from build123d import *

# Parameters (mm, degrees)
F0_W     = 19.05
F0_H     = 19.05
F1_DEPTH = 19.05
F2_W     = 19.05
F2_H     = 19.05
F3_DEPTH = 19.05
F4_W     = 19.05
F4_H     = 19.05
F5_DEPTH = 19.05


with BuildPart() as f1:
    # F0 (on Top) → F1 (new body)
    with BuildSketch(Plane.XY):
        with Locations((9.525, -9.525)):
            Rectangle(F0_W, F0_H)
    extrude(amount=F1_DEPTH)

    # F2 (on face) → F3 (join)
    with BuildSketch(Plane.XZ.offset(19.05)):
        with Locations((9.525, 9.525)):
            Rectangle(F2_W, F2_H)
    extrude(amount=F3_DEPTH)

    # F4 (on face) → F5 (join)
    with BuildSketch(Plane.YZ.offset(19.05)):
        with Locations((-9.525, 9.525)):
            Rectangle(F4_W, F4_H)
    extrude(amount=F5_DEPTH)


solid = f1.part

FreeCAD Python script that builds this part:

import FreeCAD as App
import Part
import Sketcher
from FreeCAD import Vector
Q = App.Units.Quantity


def add_polygon(sketch, points):
    """Adds a closed chain of lines whose ends are joined by coincident constraints."""
    first, n = sketch.GeometryCount, len(points)
    for a, b in zip(points, points[1:] + points[:1]):
        sketch.addGeometry(Part.LineSegment(App.Vector(*a, 0), App.Vector(*b, 0)), False)
    for i in range(n):
        sketch.addConstraint(Sketcher.Constraint("Coincident", first + i, 2, first + (i + 1) % n, 1))

doc = App.newDocument("Part")
params = doc.addObject("Spreadsheet::Sheet", "Params")
for row, (alias, value) in enumerate([
    ("sketch1_width", "0.75 in"),
    ("pad1_length", "0.75 in"),
    ("sketch2_width", "0.75 in"),
    ("pad2_length", "0.75 in"),
    ("sketch3_width", "0.75 in"),
    ("pad3_length", "0.75 in"),
], start=1):
    params.set(f"A{row}", alias)
    params.set(f"B{row}", "=" + value)
    params.setAlias(f"B{row}", alias)

body = doc.addObject("PartDesign::Body", "Body")

# Sketch on XY plane
sketch1 = body.newObject("Sketcher::SketchObject", "Sketch")
sketch1.AttachmentSupport = (doc.getObject("XY_Plane"), [""])
sketch1.MapMode = "FlatFace"
add_polygon(sketch1, [(0, 0), (0, -19.05), (19.05, -19.05), (19.05, 0)])  # lines 0-3
sketch1.addConstraint([
    Sketcher.Constraint("Vertical", 0),
    Sketcher.Constraint("Horizontal", 1),
    Sketcher.Constraint("Vertical", 2),
    Sketcher.Constraint("Horizontal", 3),
    Sketcher.Constraint("Coincident", 3, 2, -1, 1),
    Sketcher.Constraint("Equal", 3, 0),
    Sketcher.Constraint("DistanceX", 1, 1, 1, 2, Q("0.75 in")),
])
sketch1.setExpression("Constraints[10]", "Params.sketch1_width")
pad1 = body.newObject("PartDesign::Pad", "Pad")
pad1.Profile = sketch1
pad1.setExpression("Length", "Params.pad1_length")

# Sketch on XZ plane
sketch2 = body.newObject("Sketcher::SketchObject", "Sketch001")
sketch2.AttachmentSupport = (doc.getObject("XZ_Plane"), [""])
sketch2.MapMode = "FlatFace"
sketch2.AttachmentOffset = App.Placement(Vector(0, 0, 0.75 * 25.4), App.Rotation())
add_polygon(sketch2, [(0, 19.05), (0, 0), (19.05, 0), (19.05, 19.05)])  # lines 0-3
sketch2.addConstraint([
    Sketcher.Constraint("Vertical", 0),
    Sketcher.Constraint("Horizontal", 1),
    Sketcher.Constraint("Vertical", 2),
    Sketcher.Constraint("Horizontal", 3),
    Sketcher.Constraint("Coincident", 0, 2, -1, 1),
    Sketcher.Constraint("Equal", 3, 0),
    Sketcher.Constraint("DistanceX", 1, 1, 1, 2, Q("0.75 in")),
])
sketch2.setExpression("Constraints[10]", "Params.sketch2_width")
pad2 = body.newObject("PartDesign::Pad", "Pad001")
pad2.Profile = sketch2
pad2.setExpression("Length", "Params.pad2_length")

# Sketch on YZ plane
sketch3 = body.newObject("Sketcher::SketchObject", "Sketch002")
sketch3.AttachmentSupport = (doc.getObject("YZ_Plane"), [""])
sketch3.MapMode = "FlatFace"
sketch3.AttachmentOffset = App.Placement(Vector(0, 0, 0.75 * 25.4), App.Rotation())
add_polygon(sketch3, [(-19.05, 19.05), (-19.05, 0), (0, 0), (0, 19.05)])  # lines 0-3
sketch3.addConstraint([
    Sketcher.Constraint("Vertical", 0),
    Sketcher.Constraint("Horizontal", 1),
    Sketcher.Constraint("Vertical", 2),
    Sketcher.Constraint("Horizontal", 3),
    Sketcher.Constraint("Coincident", 1, 2, -1, 1),
    Sketcher.Constraint("Equal", 3, 0),
    Sketcher.Constraint("DistanceX", 1, 1, 1, 2, Q("0.75 in")),
])
sketch3.setExpression("Constraints[10]", "Params.sketch3_width")
pad3 = body.newObject("PartDesign::Pad", "Pad002")
pad3.Profile = sketch3
pad3.setExpression("Length", "Params.pad3_length")

doc.recompute()
